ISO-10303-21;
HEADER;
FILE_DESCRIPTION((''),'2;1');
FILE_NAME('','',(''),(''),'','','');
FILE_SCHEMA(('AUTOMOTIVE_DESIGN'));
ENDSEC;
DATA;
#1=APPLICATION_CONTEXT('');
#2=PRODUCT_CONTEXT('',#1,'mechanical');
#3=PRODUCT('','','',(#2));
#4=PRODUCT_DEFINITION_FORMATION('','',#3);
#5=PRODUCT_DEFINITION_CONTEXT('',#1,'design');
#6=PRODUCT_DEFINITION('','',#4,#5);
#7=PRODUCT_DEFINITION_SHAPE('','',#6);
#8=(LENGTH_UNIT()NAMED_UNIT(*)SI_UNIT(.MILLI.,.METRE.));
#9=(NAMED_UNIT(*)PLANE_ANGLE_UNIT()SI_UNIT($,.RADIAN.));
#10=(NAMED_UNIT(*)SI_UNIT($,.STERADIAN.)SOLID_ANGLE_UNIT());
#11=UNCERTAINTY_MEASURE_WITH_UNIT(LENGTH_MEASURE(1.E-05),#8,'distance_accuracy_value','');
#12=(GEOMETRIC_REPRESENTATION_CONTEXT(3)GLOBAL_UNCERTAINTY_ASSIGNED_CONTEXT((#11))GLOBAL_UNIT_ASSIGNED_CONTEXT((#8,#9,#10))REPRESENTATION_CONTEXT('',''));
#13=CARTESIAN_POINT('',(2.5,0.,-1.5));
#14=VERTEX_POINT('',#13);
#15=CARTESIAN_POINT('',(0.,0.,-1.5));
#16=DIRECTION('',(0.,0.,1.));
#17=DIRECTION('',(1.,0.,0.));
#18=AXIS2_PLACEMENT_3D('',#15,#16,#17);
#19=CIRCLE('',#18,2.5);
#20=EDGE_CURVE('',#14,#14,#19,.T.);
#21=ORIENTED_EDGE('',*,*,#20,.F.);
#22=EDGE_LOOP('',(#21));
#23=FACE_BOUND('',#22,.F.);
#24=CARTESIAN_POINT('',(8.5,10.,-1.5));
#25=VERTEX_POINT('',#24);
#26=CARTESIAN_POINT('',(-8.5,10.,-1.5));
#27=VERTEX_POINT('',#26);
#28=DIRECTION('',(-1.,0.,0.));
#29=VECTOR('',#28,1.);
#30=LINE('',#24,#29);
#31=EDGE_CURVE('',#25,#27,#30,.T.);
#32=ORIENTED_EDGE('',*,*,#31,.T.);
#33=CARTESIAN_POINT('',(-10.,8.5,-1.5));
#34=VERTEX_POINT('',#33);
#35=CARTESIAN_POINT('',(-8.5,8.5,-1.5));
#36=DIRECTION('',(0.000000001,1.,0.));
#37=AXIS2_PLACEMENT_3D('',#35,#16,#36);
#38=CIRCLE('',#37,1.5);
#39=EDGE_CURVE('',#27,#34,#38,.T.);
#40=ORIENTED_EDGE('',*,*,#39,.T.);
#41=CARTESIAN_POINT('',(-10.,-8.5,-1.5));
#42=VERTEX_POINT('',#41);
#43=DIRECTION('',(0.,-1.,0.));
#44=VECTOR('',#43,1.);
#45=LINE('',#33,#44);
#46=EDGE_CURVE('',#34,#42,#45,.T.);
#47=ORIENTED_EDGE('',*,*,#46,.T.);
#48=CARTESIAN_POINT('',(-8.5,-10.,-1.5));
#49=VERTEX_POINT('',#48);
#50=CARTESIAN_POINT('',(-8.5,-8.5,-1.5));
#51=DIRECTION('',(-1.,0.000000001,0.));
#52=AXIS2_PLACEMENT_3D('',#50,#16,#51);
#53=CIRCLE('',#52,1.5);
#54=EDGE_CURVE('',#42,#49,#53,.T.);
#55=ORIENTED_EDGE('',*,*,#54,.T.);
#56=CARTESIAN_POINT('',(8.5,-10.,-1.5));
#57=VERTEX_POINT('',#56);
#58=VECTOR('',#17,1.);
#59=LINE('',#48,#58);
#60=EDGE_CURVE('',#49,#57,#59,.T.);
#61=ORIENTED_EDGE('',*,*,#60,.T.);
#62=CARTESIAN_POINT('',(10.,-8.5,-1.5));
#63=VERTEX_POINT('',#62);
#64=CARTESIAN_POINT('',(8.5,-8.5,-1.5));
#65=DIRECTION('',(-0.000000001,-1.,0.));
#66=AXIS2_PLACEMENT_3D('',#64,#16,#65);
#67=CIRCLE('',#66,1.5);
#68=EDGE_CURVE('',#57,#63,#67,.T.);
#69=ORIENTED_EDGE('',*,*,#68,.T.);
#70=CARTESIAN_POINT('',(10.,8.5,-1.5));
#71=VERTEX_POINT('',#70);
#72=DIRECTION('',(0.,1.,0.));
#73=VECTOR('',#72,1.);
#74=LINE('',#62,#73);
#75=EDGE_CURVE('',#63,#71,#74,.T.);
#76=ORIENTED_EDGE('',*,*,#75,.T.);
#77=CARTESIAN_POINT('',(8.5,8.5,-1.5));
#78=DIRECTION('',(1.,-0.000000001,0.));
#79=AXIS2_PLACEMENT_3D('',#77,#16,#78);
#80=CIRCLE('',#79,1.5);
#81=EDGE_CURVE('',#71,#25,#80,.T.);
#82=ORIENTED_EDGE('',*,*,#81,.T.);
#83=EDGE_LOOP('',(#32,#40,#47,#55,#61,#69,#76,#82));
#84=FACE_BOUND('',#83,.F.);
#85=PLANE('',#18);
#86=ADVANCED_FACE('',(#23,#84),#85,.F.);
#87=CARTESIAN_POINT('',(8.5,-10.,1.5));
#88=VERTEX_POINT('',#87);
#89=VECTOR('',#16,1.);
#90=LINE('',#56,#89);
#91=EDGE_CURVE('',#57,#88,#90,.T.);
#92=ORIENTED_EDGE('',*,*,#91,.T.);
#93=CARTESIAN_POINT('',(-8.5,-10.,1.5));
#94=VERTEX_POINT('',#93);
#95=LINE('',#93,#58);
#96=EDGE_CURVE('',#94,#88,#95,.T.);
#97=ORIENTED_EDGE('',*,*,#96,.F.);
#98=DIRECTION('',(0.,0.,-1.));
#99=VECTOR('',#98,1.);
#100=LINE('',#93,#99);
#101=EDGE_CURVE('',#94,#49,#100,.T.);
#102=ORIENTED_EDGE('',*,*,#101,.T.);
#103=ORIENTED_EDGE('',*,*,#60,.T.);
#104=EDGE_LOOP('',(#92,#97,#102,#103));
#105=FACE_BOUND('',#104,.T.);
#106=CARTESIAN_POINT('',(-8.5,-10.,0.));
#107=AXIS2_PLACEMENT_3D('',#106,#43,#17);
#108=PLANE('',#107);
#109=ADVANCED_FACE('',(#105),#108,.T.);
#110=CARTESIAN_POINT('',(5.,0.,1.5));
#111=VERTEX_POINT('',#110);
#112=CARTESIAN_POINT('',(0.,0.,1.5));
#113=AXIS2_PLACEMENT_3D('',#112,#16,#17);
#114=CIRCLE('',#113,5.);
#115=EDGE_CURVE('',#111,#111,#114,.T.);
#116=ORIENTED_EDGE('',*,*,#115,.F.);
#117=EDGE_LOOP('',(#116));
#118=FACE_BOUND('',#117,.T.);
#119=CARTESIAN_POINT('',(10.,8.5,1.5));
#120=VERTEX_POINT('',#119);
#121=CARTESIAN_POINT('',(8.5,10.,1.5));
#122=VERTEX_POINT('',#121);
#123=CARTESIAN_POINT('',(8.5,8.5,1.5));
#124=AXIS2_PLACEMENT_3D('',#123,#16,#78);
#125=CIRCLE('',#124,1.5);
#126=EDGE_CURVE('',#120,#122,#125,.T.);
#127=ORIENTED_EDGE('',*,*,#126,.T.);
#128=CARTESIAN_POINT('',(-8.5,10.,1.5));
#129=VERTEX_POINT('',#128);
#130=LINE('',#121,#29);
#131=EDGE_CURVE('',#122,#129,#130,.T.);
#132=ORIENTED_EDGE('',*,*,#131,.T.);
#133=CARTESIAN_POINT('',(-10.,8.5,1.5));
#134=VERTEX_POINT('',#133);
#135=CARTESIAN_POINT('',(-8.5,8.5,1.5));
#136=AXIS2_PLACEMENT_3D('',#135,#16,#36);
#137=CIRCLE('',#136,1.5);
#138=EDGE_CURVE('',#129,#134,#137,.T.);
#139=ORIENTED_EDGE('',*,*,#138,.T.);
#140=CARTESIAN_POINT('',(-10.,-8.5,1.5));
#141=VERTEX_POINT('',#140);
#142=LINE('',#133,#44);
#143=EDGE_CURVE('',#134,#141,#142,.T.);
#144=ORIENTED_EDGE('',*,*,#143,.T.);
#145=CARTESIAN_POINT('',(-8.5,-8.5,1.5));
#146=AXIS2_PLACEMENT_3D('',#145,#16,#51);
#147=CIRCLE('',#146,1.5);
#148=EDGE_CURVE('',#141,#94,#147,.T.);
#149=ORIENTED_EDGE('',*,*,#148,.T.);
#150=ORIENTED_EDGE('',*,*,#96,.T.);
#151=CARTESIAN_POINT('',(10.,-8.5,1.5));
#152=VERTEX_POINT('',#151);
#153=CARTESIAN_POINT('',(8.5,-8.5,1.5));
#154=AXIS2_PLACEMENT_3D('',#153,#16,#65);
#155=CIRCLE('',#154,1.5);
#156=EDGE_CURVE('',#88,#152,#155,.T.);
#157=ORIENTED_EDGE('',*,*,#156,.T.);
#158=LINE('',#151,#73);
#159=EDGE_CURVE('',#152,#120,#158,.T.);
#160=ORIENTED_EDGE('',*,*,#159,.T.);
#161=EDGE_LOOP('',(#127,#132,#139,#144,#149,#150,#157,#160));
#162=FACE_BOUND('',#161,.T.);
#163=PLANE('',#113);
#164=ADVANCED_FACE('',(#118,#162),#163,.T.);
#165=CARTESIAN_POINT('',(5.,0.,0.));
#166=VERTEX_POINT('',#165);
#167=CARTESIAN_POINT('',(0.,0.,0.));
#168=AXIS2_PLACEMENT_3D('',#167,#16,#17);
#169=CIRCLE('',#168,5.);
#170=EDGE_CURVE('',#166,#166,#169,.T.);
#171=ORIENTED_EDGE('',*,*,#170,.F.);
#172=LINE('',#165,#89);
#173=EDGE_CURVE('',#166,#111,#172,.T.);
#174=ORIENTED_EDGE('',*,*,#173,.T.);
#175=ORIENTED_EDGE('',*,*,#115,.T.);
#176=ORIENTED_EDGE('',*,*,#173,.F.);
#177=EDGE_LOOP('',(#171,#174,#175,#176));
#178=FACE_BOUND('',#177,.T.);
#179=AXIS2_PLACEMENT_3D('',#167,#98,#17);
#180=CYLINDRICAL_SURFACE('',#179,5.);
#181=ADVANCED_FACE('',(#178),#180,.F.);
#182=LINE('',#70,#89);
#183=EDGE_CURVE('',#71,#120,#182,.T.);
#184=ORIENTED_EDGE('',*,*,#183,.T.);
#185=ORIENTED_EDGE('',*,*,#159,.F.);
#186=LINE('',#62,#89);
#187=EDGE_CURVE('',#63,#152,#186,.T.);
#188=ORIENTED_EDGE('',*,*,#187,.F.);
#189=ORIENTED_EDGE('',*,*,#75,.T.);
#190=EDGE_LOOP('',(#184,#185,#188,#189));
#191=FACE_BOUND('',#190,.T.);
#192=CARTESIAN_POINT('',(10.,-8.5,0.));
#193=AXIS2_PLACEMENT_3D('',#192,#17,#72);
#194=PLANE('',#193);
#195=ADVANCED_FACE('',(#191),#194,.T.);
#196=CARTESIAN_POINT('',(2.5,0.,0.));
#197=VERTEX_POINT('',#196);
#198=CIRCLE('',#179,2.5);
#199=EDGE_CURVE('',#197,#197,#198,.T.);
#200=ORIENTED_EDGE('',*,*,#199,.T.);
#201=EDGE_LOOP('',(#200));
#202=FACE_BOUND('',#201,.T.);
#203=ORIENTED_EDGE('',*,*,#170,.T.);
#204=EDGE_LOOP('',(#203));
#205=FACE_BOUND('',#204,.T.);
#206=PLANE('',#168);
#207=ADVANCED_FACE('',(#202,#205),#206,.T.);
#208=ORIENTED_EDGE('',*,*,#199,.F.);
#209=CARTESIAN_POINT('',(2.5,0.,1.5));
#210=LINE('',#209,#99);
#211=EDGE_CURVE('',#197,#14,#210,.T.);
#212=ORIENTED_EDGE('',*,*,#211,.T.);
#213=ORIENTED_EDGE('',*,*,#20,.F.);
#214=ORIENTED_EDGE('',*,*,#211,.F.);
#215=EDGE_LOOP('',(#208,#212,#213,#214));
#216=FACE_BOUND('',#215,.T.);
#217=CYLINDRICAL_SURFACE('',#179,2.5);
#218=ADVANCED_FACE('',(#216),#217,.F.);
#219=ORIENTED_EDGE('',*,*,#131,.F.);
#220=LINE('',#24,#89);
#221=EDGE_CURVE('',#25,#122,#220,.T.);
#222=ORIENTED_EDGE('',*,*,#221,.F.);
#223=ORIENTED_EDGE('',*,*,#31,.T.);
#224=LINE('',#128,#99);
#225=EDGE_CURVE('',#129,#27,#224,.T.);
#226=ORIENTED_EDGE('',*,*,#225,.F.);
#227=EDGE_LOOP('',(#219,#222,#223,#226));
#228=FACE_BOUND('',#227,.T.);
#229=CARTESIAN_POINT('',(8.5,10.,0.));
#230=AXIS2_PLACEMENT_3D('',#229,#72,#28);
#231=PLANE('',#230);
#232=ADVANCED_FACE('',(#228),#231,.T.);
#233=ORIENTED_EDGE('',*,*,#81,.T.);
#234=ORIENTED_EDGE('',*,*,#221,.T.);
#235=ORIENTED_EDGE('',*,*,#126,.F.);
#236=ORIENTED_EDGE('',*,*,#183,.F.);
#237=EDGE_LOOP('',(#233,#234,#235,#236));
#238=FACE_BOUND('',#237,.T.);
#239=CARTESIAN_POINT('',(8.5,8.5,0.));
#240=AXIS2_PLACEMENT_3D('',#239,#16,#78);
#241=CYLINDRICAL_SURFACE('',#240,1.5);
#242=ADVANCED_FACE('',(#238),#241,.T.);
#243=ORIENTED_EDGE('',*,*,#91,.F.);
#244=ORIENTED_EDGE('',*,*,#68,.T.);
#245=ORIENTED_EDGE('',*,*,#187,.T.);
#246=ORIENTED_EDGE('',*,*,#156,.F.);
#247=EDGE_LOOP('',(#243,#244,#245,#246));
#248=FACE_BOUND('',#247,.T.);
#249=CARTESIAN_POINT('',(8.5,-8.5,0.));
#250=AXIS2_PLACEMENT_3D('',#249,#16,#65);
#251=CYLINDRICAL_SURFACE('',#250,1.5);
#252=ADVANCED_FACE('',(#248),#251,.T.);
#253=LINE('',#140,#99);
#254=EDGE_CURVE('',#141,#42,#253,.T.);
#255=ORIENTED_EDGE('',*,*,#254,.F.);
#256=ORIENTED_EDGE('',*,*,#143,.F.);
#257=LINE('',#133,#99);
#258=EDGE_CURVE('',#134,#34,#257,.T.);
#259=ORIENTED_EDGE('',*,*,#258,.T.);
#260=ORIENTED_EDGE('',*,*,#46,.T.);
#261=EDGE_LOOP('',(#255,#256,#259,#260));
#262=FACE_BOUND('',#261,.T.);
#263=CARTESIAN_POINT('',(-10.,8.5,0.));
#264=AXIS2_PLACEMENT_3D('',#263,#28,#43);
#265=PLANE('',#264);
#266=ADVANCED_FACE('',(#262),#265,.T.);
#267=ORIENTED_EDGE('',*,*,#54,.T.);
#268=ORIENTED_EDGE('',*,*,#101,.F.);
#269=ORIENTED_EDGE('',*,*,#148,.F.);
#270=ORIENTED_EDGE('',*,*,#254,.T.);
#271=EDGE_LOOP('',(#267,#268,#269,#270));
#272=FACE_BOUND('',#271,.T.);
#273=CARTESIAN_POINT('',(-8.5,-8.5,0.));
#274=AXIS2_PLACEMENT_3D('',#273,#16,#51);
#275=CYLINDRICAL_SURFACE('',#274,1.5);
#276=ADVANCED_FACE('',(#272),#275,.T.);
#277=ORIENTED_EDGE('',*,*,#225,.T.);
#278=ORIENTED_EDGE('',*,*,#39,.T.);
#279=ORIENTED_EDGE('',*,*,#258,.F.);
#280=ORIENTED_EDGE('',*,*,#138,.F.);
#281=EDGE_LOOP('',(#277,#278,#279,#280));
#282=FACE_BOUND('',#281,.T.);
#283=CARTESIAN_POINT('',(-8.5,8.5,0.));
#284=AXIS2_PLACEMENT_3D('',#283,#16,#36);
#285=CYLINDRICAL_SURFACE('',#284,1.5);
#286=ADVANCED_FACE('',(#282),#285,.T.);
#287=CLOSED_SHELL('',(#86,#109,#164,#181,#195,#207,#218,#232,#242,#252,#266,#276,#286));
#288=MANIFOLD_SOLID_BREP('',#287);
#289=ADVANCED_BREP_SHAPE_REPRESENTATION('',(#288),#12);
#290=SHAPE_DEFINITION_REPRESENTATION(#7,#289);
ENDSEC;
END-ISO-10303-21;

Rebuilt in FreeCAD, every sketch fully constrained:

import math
import FreeCAD as App
import Part
import Sketcher

doc = App.newDocument("Part")
body = doc.addObject("PartDesign::Body", "Body")

sketch1 = body.newObject("Sketcher::SketchObject", "Sketch")
sketch1.AttachmentSupport = (doc.getObject("XY_Plane"), [""])
sketch1.MapMode = "FlatFace"
sketch1.addGeometry([
    Part.LineSegment(App.Vector(-8.5, -10, 0), App.Vector(8.5, -10, 0)),
    Part.ArcOfCircle(Part.Circle(App.Vector(8.5, -8.5, 0), App.Vector(0, 0, 1), 1.5), math.radians(-90), math.radians(0)),
    Part.LineSegment(App.Vector(10, -8.5, 0), App.Vector(10, 8.5, 0)),
    Part.ArcOfCircle(Part.Circle(App.Vector(8.5, 8.5, 0), App.Vector(0, 0, 1), 1.5), math.radians(0), math.radians(90)),
    Part.LineSegment(App.Vector(8.5, 10, 0), App.Vector(-8.5, 10, 0)),
    Part.ArcOfCircle(Part.Circle(App.Vector(-8.5, 8.5, 0), App.Vector(0, 0, 1), 1.5), math.radians(90), math.radians(180)),
    Part.LineSegment(App.Vector(-10, 8.5, 0), App.Vector(-10, -8.5, 0)),
    Part.ArcOfCircle(Part.Circle(App.Vector(-8.5, -8.5, 0), App.Vector(0, 0, 1), 1.5), math.radians(180), math.radians(270)),
    Part.Circle(App.Vector(0, 0, 0), App.Vector(0, 0, 1), 2.5),
], False)
sketch1.addConstraint([
    Sketcher.Constraint("Tangent", 0, 2, 1, 1),
    Sketcher.Constraint("Tangent", 1, 2, 2, 1),
    Sketcher.Constraint("Tangent", 2, 2, 3, 1),
    Sketcher.Constraint("Tangent", 3, 2, 4, 1),
    Sketcher.Constraint("Tangent", 4, 2, 5, 1),
    Sketcher.Constraint("Tangent", 5, 2, 6, 1),
    Sketcher.Constraint("Tangent", 6, 2, 7, 1),
    Sketcher.Constraint("Tangent", 7, 2, 0, 1),
    Sketcher.Constraint("Horizontal", 0),
    Sketcher.Constraint("Vertical", 2),
    Sketcher.Constraint("Horizontal", 4),
    Sketcher.Constraint("Vertical", 6),
    Sketcher.Constraint("Coincident", 8, 3, -1, 1),
    Sketcher.Constraint("Equal", 1, 3),
    Sketcher.Constraint("Equal", 3, 5),
    Sketcher.Constraint("Equal", 5, 7),
    Sketcher.Constraint("Symmetric", 1, 3, 5, 3, -1, 1),
    Sketcher.Constraint("Equal", 4, 2),
    Sketcher.Constraint("Diameter", 8, 5.0),
    Sketcher.Constraint("Radius", 1, 1.5),
    Sketcher.Constraint("DistanceX", 0, 1, 0, 2, 17.0),
])
pad1 = body.newObject("PartDesign::Pad", "Pad")
pad1.Profile = sketch1
pad1.Length = 3
pad1.Midplane = True

sketch2 = body.newObject("Sketcher::SketchObject", "Sketch001")
sketch2.AttachmentSupport = (doc.getObject("XY_Plane"), [""])
sketch2.MapMode = "FlatFace"
sketch2.addGeometry(Part.Circle(App.Vector(0, 0, 0), App.Vector(0, 0, 1), 5), False)
sketch2.addConstraint([
    Sketcher.Constraint("Coincident", 0, 3, -1, 1),
    Sketcher.Constraint("Diameter", 0, 10.0),
])
pocket1 = body.newObject("PartDesign::Pocket", "Pocket")
pocket1.Profile = sketch2
pocket1.Length = 1.5
pocket1.Reversed = True

doc.recompute()
